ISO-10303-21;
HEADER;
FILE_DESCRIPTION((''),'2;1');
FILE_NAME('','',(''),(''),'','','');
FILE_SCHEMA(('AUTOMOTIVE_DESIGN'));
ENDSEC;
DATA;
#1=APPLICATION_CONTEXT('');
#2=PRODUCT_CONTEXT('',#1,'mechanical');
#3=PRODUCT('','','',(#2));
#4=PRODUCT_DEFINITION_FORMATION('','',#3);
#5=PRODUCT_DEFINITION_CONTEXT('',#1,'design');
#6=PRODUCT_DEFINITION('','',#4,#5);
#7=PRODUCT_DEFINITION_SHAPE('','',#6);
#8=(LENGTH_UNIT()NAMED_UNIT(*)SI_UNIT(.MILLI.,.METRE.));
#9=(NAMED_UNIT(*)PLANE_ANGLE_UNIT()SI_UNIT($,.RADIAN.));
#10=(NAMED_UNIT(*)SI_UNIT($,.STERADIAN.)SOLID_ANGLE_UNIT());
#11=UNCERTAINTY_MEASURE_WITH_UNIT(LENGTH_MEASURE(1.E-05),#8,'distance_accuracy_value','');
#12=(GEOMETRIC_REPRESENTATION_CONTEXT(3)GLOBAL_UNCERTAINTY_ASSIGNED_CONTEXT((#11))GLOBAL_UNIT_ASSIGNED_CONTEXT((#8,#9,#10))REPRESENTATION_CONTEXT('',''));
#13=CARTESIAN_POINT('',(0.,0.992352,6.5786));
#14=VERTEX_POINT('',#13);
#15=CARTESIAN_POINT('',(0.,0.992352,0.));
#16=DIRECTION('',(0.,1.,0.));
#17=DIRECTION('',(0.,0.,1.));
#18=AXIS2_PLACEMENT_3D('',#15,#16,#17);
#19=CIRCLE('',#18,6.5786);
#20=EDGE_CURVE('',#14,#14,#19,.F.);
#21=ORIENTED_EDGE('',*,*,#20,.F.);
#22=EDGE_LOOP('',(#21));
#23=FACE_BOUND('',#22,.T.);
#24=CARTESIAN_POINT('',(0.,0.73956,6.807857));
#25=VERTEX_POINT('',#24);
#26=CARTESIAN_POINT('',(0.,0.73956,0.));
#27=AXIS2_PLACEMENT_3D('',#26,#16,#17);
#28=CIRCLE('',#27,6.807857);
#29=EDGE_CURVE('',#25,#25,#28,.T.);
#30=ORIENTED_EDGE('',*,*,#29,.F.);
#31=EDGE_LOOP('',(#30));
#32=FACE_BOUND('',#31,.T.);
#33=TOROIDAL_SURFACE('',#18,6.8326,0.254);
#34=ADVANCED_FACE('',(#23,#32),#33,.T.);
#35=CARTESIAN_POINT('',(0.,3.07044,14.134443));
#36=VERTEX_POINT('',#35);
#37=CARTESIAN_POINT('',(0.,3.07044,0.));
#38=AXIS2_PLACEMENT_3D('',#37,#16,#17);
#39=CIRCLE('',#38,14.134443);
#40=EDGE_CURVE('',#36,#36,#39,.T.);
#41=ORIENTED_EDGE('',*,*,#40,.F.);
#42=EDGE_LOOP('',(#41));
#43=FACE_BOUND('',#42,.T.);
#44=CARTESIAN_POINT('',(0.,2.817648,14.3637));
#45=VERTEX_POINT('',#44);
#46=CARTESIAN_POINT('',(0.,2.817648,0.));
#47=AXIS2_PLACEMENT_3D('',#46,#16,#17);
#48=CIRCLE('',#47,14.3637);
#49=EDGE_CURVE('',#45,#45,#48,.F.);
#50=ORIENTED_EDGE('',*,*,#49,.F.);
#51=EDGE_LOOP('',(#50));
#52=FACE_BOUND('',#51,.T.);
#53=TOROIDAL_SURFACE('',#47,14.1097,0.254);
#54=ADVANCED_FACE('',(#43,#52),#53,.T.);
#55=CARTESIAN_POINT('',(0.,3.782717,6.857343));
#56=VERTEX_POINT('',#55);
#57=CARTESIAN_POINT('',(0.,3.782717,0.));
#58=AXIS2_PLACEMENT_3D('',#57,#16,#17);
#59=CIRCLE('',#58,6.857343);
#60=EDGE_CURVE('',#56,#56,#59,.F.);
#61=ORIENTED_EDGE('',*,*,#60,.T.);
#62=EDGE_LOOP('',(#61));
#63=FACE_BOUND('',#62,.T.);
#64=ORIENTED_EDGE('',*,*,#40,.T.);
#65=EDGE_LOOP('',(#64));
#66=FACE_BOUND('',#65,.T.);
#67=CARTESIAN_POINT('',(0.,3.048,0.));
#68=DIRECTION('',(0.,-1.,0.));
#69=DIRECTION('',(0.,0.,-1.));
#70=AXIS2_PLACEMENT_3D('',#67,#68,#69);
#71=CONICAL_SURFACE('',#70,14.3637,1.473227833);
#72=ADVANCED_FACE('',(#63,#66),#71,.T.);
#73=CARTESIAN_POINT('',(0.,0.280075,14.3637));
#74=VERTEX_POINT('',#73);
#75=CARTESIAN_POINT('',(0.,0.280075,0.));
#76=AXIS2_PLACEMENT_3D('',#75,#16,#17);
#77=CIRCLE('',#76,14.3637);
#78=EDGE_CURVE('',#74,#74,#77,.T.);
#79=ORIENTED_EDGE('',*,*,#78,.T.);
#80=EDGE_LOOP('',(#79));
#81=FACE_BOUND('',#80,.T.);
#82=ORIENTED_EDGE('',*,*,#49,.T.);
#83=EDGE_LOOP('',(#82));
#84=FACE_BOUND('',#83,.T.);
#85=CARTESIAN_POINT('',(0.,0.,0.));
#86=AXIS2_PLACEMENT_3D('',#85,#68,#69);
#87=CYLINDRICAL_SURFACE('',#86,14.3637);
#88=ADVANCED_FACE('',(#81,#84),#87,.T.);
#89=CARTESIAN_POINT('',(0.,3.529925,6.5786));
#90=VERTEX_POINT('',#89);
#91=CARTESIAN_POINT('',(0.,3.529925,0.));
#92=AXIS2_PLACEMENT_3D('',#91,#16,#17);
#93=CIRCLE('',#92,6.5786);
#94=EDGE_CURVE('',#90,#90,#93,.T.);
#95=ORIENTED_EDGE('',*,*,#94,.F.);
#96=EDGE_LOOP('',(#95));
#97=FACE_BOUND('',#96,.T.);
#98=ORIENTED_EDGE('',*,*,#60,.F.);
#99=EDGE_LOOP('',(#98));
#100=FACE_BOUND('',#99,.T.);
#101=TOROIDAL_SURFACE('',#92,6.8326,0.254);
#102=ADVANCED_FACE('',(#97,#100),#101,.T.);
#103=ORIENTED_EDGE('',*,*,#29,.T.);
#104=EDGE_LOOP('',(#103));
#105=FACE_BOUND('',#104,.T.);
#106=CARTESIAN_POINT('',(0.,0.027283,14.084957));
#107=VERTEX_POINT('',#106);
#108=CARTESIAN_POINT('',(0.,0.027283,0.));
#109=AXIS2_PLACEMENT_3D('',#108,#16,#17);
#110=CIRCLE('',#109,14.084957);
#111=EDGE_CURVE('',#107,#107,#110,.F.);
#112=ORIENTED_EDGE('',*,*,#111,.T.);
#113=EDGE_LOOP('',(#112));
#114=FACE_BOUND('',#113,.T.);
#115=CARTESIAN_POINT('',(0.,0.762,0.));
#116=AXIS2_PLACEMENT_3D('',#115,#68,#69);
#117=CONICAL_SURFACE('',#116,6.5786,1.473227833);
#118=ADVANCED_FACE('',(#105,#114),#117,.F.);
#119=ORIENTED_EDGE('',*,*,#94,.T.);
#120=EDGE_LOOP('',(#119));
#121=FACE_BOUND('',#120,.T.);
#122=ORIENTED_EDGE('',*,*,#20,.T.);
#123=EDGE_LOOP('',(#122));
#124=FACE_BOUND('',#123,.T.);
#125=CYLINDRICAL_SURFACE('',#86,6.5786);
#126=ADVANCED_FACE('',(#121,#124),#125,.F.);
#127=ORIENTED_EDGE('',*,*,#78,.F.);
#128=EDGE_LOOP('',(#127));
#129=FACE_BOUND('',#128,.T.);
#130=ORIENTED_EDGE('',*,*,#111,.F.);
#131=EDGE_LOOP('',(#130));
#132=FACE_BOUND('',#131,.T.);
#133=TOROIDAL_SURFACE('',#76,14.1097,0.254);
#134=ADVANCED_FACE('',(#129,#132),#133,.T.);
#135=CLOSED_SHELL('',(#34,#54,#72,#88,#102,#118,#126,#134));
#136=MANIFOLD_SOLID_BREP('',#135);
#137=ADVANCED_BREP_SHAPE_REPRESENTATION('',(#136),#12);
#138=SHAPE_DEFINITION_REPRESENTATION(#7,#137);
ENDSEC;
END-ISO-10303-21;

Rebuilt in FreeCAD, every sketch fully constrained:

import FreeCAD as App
import Part
import Sketcher
Q = App.Units.Quantity


def edges_at(feature, points):
    """Names of the edges that pass closest to the given points."""
    edges = feature.Shape.Edges
    near = lambda p: min(range(len(edges)), key=lambda i: edges[i].distToShape(Part.Vertex(*p))[0])
    return sorted({f"Edge{near(p) + 1}" for p in points})

doc = App.newDocument("Part")
body = doc.addObject("PartDesign::Body", "Body")

# Sketch on YZ plane
sketch1 = body.newObject("Sketcher::SketchObject", "Sketch")
sketch1.AttachmentSupport = (doc.getObject("YZ_Plane"), [""])
sketch1.MapMode = "FlatFace"
sketch1.addGeometry([
    Part.LineSegment(App.Vector(3.81, -6.5786, 0), App.Vector(0.762, -6.5786, 0)),
    Part.LineSegment(App.Vector(0.762, -6.5786, 0), App.Vector(0, -14.3637, 0)),
    Part.LineSegment(App.Vector(0, -14.3637, 0), App.Vector(3.048, -14.3637, 0)),
    Part.LineSegment(App.Vector(3.048, -14.3637, 0), App.Vector(3.81, -6.5786, 0)),
], False)
sketch1.addConstraint([
    Sketcher.Constraint("Coincident", 0, 2, 1, 1),
    Sketcher.Constraint("Coincident", 1, 2, 2, 1),
    Sketcher.Constraint("Coincident", 2, 2, 3, 1),
    Sketcher.Constraint("Coincident", 3, 2, 0, 1),
    Sketcher.Constraint("Horizontal", 0),
    Sketcher.Constraint("Horizontal", 2),
    Sketcher.Constraint("PointOnObject", 1, 2, -2),
    Sketcher.Constraint("Parallel", 1, 3),
    Sketcher.Constraint("DistanceX", 0, 2, 0, 1, Q("0.12 in")),
    Sketcher.Constraint("DistanceX", -1, 1, 0, 2, Q("0.03 in")),
    Sketcher.Constraint("DistanceY", 0, 2, -1, 1, Q("0.259 in")),
    Sketcher.Constraint("DistanceY", 1, 2, -1, 1, Q("0.5655 in")),
])
revolution = body.newObject("PartDesign::Revolution", "Revolution")
revolution.Profile = sketch1
revolution.ReferenceAxis = (sketch1, ["H_Axis"])
revolution.Angle = 360
doc.recompute()

fillet = body.newObject("PartDesign::Fillet", "Fillet")
fillet.Base = (revolution, edges_at(revolution, [
    (0, 3.048, 14.364),
    (0, 0, 14.364),
    (0, 0.762, 6.579),
    (0, 3.81, 6.579),
]))
fillet.Radius = Q("0.01 in")

doc.recompute()
